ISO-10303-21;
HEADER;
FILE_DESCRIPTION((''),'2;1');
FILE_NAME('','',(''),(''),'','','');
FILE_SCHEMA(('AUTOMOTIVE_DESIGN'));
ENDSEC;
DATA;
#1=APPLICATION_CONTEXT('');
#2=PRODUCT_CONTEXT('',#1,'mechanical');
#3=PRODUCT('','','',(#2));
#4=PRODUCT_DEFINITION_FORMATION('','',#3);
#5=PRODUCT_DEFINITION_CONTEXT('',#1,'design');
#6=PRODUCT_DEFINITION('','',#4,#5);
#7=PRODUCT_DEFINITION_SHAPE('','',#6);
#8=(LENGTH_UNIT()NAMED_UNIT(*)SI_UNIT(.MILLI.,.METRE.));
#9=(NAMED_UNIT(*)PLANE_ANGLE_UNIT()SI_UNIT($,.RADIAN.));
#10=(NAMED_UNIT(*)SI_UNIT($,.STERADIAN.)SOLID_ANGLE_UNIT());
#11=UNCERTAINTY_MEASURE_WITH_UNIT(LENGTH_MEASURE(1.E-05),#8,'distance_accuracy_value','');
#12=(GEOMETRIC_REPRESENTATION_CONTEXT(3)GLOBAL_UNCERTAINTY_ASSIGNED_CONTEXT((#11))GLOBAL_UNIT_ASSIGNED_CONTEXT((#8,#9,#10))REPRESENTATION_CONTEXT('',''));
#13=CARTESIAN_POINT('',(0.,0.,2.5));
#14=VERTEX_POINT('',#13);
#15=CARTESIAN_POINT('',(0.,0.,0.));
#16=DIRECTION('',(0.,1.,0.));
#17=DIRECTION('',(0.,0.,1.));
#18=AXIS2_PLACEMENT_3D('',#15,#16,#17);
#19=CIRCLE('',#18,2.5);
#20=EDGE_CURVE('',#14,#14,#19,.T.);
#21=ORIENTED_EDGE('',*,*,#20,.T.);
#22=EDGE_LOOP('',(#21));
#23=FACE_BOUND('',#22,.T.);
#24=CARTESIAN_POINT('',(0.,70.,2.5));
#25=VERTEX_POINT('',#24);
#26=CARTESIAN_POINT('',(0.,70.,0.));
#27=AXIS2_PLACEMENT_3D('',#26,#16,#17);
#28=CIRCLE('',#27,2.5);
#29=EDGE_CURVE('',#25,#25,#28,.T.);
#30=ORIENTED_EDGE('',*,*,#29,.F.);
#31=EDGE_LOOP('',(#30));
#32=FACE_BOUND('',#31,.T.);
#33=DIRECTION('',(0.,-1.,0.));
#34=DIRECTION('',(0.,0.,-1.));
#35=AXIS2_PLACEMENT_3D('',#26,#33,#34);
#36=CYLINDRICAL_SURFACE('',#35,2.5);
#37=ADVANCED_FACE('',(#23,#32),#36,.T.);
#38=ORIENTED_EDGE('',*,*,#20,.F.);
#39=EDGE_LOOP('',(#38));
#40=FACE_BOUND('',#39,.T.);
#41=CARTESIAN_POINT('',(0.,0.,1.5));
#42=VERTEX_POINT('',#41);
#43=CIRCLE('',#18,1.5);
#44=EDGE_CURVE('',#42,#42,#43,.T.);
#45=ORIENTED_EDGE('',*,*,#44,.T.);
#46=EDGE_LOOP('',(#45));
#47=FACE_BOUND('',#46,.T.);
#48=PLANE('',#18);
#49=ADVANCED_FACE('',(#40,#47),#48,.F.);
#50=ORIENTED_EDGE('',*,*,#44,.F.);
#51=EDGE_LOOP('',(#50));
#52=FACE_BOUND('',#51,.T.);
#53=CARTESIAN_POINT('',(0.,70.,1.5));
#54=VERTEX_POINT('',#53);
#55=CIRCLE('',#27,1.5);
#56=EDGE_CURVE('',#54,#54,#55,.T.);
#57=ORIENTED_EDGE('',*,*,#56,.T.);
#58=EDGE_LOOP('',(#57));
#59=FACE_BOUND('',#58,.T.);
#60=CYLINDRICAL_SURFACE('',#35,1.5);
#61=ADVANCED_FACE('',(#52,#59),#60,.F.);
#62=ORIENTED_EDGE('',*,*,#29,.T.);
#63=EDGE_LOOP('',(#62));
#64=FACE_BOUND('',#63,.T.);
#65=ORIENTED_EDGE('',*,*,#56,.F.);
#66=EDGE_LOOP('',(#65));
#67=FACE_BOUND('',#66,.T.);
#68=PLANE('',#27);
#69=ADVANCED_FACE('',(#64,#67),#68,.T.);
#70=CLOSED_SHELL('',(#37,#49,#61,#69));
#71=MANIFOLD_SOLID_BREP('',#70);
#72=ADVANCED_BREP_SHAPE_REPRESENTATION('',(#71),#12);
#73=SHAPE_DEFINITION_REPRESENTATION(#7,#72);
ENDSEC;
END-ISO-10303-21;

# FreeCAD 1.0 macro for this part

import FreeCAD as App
import Part
import Sketcher

V = App.Vector

doc = App.newDocument("Part")
params = doc.addObject("Spreadsheet::Sheet", "Params")
for row, (alias, value) in enumerate([
    ("sketch1_diameter", "5 mm"),
    ("sketch1_diameter2", "3 mm"),
    ("pad1_length", "70 mm"),
], start=1):
    params.set(f"A{row}", alias)
    params.set(f"B{row}", "=" + value)
    params.setAlias(f"B{row}", alias)

body = doc.addObject("PartDesign::Body", "Body")

sketch1 = body.newObject("Sketcher::SketchObject", "Sketch")
sketch1.AttachmentSupport = (doc.getObject("XZ_Plane"), [""])
sketch1.MapMode = "FlatFace"
sketch1.addGeometry([
    Part.Circle(V(0, 0, 0), V(0, 0, 1), 2.5),
    Part.Circle(V(0, 0, 0), V(0, 0, 1), 1.5),
], False)
sketch1.addConstraint([
    Sketcher.Constraint("Coincident", 0, 3, -1, 1),
    Sketcher.Constraint("Coincident", 1, 3, -1, 1),
    Sketcher.Constraint("Diameter", 0, 5.0),
    Sketcher.Constraint("Diameter", 1, 3.0),
])
sketch1.setExpression("Constraints[2]", "Params.sketch1_diameter")
sketch1.setExpression("Constraints[3]", "Params.sketch1_diameter2")
pad1 = body.newObject("PartDesign::Pad", "Pad")
pad1.Profile = sketch1
pad1.setExpression("Length", "Params.pad1_length")
pad1.Reversed = True

doc.recompute()
